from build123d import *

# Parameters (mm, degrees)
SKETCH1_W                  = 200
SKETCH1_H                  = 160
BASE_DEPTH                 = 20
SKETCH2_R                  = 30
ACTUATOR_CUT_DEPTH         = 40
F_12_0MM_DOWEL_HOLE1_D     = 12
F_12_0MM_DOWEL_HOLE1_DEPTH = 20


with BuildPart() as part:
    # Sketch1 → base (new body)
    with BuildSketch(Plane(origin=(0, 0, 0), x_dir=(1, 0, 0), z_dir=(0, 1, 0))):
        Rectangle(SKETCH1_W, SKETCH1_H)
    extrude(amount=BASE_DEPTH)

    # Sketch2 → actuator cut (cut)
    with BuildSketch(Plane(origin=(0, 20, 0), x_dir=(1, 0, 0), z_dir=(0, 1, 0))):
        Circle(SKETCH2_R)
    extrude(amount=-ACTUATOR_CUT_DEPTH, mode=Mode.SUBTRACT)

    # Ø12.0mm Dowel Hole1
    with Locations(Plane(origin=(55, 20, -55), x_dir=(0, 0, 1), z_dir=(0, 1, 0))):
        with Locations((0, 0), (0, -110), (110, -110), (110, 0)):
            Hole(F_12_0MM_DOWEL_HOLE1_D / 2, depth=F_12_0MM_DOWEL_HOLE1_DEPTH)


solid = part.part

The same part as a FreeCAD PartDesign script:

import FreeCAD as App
import Part
import Sketcher
Q = App.Units.Quantity


def add_polygon(sketch, points):
    """Adds a closed chain of lines whose ends are joined by coincident constraints."""
    first, n = sketch.GeometryCount, len(points)
    for a, b in zip(points, points[1:] + points[:1]):
        sketch.addGeometry(Part.LineSegment(App.Vector(*a, 0), App.Vector(*b, 0)), False)
    for i in range(n):
        sketch.addConstraint(Sketcher.Constraint("Coincident", first + i, 2, first + (i + 1) % n, 1))

doc = App.newDocument("Part")
body = doc.addObject("PartDesign::Body", "Body")

# Sketch on XZ plane
sketch1 = body.newObject("Sketcher::SketchObject", "Sketch")
sketch1.AttachmentSupport = (doc.getObject("XZ_Plane"), [""])
sketch1.MapMode = "FlatFace"
add_polygon(sketch1, [(-100, -80), (-100, 80), (100, 80), (100, -80)])  # lines 0-3
sketch1.addConstraint(Sketcher.Constraint("Vertical", 0))
sketch1.addConstraint(Sketcher.Constraint("Horizontal", 1))
sketch1.addConstraint(Sketcher.Constraint("Vertical", 2))
sketch1.addConstraint(Sketcher.Constraint("Horizontal", 3))
sketch1.addConstraint(Sketcher.Constraint("Symmetric", 0, 2, 2, 2, -1, 1))
sketch1.addConstraint(Sketcher.Constraint("DistanceX", 1, 1, 1, 2, Q("200 mm")))
sketch1.addConstraint(Sketcher.Constraint("DistanceY", 0, 1, 0, 2, Q("160 mm")))
pad1 = body.newObject("PartDesign::Pad", "Pad")
pad1.Profile = sketch1
pad1.Length = 20
pad1.Reversed = True

# Sketch on XZ plane
sketch2 = body.newObject("Sketcher::SketchObject", "Sketch001")
sketch2.AttachmentSupport = (doc.getObject("XZ_Plane"), [""])
sketch2.MapMode = "FlatFace"
sketch2.AttachmentOffset = App.Placement(App.Vector(0, 0, -20), App.Rotation())
sketch2.addGeometry(Part.Circle(App.Vector(0, 0, 0), App.Vector(0, 0, 1), 30), False)
sketch2.addConstraint(Sketcher.Constraint("Coincident", 0, 3, -1, 1))
sketch2.addConstraint(Sketcher.Constraint("Diameter", 0, Q("60 mm")))
pocket1 = body.newObject("PartDesign::Pocket", "Pocket")
pocket1.Profile = sketch2
pocket1.Length = 40
pocket1.Reversed = True

# Sketch on XZ plane
sketch3 = body.newObject("Sketcher::SketchObject", "Sketch002")
sketch3.AttachmentSupport = (doc.getObject("XZ_Plane"), [""])
sketch3.MapMode = "FlatFace"
sketch3.AttachmentOffset = App.Placement(App.Vector(0, 0, -20), App.Rotation())
sketch3.addGeometry(Part.Circle(App.Vector(55, -55, 0), App.Vector(0, 0, 1), 6), False)
sketch3.addGeometry(Part.Circle(App.Vector(-55, -55, 0), App.Vector(0, 0, 1), 6), False)
sketch3.addGeometry(Part.Circle(App.Vector(-55, 55, 0), App.Vector(0, 0, 1), 6), False)
sketch3.addGeometry(Part.Circle(App.Vector(55, 55, 0), App.Vector(0, 0, 1), 6), False)
sketch3.addConstraint(Sketcher.Constraint("Equal", 0, 1))
sketch3.addConstraint(Sketcher.Constraint("Equal", 1, 2))
sketch3.addConstraint(Sketcher.Constraint("Equal", 2, 3))
sketch3.addConstraint(Sketcher.Constraint("Symmetric", 0, 3, 2, 3, -1, 1))
sketch3.addConstraint(Sketcher.Constraint("Symmetric", 1, 3, 3, 3, -1, 1))
sketch3.addConstraint(Sketcher.Constraint("Symmetric", 0, 3, 1, 3, -2))
sketch3.addConstraint(Sketcher.Constraint("Diameter", 0, Q("12 mm")))
sketch3.addConstraint(Sketcher.Constraint("DistanceX", -1, 1, 0, 3, Q("55 mm")))
sketch3.addConstraint(Sketcher.Constraint("DistanceY", 0, 3, -1, 1, Q("55 mm")))
doc.recompute()
hole = body.newObject("PartDesign::Hole", "Hole")
hole.Profile = sketch3
hole.ThreadType = "None"
hole.Diameter = 12
hole.DepthType = "Dimension"
hole.Depth = 20
hole.DrillPoint = "Flat"
hole.Reversed = True

doc.recompute()
